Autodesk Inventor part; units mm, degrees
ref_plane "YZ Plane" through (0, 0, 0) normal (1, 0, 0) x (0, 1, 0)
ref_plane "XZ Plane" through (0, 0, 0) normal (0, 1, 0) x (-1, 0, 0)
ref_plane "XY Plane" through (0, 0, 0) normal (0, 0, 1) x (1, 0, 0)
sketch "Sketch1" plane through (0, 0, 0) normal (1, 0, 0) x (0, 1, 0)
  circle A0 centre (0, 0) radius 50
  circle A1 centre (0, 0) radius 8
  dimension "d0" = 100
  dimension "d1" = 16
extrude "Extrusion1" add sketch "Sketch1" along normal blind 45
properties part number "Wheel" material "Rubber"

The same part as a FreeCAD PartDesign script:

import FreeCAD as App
import Part
import Sketcher

doc = App.newDocument("Part")
body = doc.addObject("PartDesign::Body", "Body")

# Sketch on YZ plane
sketch1 = body.newObject("Sketcher::SketchObject", "Sketch")
sketch1.AttachmentSupport = (doc.getObject("YZ_Plane"), [""])
sketch1.MapMode = "FlatFace"
sketch1.addGeometry(Part.Circle(App.Vector(0, 0, 0), App.Vector(0, 0, 1), 50), False)
sketch1.addGeometry(Part.Circle(App.Vector(0, 0, 0), App.Vector(0, 0, 1), 8), False)
sketch1.addConstraint(Sketcher.Constraint("Coincident", 0, 3, -1, 1))
sketch1.addConstraint(Sketcher.Constraint("Coincident", 1, 3, -1, 1))
sketch1.addConstraint(Sketcher.Constraint("Diameter", 0, 100.0))
sketch1.addConstraint(Sketcher.Constraint("Diameter", 1, 16.0))
pad1 = body.newObject("PartDesign::Pad", "Pad")
pad1.Profile = sketch1
pad1.Length = 45

doc.recompute()
